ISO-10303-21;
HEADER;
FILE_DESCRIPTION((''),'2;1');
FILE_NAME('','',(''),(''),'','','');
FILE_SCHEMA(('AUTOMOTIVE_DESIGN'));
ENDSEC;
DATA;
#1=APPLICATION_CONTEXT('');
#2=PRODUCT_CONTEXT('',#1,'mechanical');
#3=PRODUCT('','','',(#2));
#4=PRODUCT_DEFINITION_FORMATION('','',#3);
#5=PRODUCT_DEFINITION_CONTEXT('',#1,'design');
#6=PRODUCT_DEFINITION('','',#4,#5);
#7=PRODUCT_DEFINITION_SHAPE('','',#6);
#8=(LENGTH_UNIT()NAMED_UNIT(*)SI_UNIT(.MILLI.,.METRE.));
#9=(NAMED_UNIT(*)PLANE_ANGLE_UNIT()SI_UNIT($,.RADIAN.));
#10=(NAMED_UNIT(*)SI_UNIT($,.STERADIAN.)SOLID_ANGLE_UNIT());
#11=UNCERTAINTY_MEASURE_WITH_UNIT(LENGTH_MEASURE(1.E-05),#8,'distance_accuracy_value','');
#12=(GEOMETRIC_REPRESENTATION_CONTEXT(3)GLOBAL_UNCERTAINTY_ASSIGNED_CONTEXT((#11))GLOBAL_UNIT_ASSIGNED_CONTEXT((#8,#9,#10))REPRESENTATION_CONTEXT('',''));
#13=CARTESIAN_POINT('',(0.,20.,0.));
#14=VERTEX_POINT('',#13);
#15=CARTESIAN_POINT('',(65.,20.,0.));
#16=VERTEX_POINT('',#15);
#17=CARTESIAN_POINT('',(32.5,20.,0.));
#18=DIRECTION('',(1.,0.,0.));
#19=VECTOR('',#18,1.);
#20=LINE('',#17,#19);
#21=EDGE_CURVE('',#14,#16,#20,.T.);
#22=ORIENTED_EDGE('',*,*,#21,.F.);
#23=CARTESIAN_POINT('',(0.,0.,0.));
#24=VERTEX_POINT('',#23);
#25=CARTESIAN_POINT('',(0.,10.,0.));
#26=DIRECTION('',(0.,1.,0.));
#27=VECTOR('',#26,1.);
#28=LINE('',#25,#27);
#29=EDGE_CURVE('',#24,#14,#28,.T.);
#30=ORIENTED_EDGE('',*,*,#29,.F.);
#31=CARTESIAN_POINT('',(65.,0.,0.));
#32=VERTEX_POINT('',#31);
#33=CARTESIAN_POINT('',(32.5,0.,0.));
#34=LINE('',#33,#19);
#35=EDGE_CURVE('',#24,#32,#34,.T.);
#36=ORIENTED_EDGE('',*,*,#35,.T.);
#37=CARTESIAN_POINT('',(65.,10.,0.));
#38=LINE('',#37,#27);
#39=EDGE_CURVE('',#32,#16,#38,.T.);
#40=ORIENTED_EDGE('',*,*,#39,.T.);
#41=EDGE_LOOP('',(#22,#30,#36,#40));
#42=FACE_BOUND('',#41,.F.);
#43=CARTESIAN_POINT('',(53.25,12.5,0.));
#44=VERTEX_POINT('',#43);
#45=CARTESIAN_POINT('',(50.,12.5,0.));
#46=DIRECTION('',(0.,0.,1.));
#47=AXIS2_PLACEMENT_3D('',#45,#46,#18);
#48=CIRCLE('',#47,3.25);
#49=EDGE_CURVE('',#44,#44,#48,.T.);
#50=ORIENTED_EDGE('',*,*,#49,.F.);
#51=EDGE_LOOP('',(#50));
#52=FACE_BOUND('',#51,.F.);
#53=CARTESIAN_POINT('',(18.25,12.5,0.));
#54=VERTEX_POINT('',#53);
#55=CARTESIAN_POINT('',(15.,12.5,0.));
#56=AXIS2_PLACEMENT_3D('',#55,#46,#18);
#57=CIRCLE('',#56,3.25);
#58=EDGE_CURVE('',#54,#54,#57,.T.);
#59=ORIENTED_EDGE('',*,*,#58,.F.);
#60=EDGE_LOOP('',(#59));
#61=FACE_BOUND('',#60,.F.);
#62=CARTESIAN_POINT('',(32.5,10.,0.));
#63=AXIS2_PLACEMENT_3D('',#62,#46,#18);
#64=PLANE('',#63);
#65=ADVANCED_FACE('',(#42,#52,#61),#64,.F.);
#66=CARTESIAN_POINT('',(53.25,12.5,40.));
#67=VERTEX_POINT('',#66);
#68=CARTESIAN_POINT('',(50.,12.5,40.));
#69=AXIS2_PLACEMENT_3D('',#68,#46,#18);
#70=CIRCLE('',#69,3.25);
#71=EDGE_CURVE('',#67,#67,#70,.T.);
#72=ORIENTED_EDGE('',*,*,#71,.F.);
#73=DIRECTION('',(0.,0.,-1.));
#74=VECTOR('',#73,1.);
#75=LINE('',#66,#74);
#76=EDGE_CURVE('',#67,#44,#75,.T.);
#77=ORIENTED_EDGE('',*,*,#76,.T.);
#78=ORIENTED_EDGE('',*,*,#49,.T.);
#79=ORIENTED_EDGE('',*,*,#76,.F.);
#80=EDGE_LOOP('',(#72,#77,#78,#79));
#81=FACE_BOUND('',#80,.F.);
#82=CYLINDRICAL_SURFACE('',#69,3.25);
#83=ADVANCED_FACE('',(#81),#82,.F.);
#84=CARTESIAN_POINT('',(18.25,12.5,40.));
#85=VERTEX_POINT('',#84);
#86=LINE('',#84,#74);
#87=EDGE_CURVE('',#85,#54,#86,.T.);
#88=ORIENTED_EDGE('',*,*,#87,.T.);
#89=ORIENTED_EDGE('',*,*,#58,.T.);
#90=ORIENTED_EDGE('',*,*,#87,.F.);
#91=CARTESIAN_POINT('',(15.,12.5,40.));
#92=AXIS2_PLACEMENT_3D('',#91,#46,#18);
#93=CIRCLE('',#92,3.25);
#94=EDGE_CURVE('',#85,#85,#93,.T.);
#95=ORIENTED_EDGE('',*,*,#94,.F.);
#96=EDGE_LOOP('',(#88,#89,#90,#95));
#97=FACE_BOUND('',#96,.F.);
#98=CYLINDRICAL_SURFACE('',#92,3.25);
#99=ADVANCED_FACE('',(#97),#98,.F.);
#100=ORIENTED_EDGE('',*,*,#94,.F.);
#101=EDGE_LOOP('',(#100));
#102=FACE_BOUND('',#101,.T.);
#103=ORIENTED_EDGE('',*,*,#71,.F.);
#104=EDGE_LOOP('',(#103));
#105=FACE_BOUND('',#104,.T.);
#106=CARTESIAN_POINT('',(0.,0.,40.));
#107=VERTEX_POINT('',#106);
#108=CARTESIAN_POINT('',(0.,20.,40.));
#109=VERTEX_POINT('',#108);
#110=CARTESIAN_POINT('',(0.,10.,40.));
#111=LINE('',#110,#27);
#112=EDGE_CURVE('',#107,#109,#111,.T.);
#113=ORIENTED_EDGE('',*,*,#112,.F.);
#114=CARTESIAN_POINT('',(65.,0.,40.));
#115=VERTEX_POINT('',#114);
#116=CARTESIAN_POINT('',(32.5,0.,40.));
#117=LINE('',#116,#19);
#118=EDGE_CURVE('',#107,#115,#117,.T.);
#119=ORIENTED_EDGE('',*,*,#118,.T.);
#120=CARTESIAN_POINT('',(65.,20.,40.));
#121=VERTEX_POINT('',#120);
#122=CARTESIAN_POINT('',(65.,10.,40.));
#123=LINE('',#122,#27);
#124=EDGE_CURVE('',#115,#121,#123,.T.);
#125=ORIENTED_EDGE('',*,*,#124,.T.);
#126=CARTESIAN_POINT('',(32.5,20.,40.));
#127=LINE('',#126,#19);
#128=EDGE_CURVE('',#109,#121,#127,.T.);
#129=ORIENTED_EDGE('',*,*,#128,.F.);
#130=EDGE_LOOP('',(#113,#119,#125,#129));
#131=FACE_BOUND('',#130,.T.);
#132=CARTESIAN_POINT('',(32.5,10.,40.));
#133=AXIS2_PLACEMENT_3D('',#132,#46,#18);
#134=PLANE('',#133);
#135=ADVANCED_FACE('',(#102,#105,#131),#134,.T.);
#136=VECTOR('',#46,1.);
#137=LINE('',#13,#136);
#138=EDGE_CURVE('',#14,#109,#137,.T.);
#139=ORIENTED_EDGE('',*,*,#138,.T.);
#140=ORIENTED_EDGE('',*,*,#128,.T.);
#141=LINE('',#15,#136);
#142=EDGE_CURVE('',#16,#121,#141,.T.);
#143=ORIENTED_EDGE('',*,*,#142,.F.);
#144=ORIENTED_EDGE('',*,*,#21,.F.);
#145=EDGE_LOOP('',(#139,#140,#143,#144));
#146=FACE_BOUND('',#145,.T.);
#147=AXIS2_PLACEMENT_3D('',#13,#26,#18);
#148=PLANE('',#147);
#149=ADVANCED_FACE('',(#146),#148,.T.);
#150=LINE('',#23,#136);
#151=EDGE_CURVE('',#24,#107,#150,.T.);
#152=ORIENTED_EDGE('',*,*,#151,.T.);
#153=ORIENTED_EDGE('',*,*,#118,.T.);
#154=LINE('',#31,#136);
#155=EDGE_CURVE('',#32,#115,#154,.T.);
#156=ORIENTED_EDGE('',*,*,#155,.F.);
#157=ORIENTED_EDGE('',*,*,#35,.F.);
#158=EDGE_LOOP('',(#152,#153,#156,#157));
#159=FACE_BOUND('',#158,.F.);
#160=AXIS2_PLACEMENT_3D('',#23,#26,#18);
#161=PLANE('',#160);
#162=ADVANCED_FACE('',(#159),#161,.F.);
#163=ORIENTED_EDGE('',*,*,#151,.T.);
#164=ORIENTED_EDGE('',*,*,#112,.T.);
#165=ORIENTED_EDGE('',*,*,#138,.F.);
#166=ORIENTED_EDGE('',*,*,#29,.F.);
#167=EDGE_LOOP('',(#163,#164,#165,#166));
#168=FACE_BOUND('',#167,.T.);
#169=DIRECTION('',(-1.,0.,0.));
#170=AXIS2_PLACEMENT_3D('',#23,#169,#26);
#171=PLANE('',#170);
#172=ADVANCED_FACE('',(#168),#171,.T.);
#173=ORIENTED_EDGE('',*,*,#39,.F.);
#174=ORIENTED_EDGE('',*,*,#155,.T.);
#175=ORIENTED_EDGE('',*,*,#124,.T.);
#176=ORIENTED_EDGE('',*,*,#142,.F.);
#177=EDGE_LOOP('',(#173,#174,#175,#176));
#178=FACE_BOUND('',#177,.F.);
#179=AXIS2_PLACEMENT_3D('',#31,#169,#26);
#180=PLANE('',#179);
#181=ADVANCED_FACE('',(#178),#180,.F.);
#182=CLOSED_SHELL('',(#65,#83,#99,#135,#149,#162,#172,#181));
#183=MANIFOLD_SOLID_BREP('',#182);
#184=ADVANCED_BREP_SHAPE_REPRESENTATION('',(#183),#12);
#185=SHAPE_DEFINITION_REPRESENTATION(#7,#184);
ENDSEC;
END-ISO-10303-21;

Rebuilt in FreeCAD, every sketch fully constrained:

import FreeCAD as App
import Part
import Sketcher
from FreeCAD import Vector


def add_polygon(sketch, points):
    """Adds a closed chain of lines whose ends are joined by coincident constraints."""
    first, n = sketch.GeometryCount, len(points)
    for a, b in zip(points, points[1:] + points[:1]):
        sketch.addGeometry(Part.LineSegment(App.Vector(*a, 0), App.Vector(*b, 0)), False)
    for i in range(n):
        sketch.addConstraint(Sketcher.Constraint("Coincident", first + i, 2, first + (i + 1) % n, 1))

doc = App.newDocument("Part")
body = doc.addObject("PartDesign::Body", "Body")

# Sketch on XY plane
sketch1 = doc.addObject("Sketcher::SketchObject", "Sketch")
body.addObject(sketch1)
sketch1.AttachmentSupport = (doc.XY_Plane, [""])
sketch1.MapMode = "FlatFace"
add_polygon(sketch1, [(0, 20), (0, 0), (65, 0), (65, 20)])  # lines 0-3
sketch1.addConstraint([
    Sketcher.Constraint("Vertical", 0),
    Sketcher.Constraint("Horizontal", 1),
    Sketcher.Constraint("Vertical", 2),
    Sketcher.Constraint("Horizontal", 3),
    Sketcher.Constraint("Coincident", 0, 2, -1, 1),
    Sketcher.Constraint("DistanceX", 1, 1, 1, 2, 65.0),
    Sketcher.Constraint("DistanceY", 0, 2, 0, 1, 20.0),
])
pad1 = doc.addObject("PartDesign::Pad", "Pad")
body.addObject(pad1)
pad1.Profile = sketch1
pad1.Length = 40

# Sketch on XY plane
sketch2 = doc.addObject("Sketcher::SketchObject", "Sketch001")
body.addObject(sketch2)
sketch2.AttachmentSupport = (doc.XY_Plane, [""])
sketch2.MapMode = "FlatFace"
sketch2.AttachmentOffset = App.Placement(Vector(0, 0, 40), App.Rotation())
sketch2.addGeometry([
    Part.Circle(Vector(15, 12.5, 0), Vector(0, 0, 1), 3.2),
    Part.Circle(Vector(50, 12.5, 0), Vector(0, 0, 1), 3.2),
], False)
sketch2.addConstraint([
    Sketcher.Constraint("Equal", 0, 1),
    Sketcher.Constraint("Horizontal", 0, 3, 1, 3),
    Sketcher.Constraint("Diameter", 0, 6.5),
    Sketcher.Constraint("DistanceX", -1, 1, 0, 3, 15.0),
    Sketcher.Constraint("DistanceX", -1, 1, 1, 3, 50.0),
    Sketcher.Constraint("DistanceY", -1, 1, 0, 3, 12.5),
])
pocket1 = doc.addObject("PartDesign::Pocket", "Pocket")
body.addObject(pocket1)
pocket1.Profile = sketch2
pocket1.Type = "ThroughAll"

doc.recompute()
